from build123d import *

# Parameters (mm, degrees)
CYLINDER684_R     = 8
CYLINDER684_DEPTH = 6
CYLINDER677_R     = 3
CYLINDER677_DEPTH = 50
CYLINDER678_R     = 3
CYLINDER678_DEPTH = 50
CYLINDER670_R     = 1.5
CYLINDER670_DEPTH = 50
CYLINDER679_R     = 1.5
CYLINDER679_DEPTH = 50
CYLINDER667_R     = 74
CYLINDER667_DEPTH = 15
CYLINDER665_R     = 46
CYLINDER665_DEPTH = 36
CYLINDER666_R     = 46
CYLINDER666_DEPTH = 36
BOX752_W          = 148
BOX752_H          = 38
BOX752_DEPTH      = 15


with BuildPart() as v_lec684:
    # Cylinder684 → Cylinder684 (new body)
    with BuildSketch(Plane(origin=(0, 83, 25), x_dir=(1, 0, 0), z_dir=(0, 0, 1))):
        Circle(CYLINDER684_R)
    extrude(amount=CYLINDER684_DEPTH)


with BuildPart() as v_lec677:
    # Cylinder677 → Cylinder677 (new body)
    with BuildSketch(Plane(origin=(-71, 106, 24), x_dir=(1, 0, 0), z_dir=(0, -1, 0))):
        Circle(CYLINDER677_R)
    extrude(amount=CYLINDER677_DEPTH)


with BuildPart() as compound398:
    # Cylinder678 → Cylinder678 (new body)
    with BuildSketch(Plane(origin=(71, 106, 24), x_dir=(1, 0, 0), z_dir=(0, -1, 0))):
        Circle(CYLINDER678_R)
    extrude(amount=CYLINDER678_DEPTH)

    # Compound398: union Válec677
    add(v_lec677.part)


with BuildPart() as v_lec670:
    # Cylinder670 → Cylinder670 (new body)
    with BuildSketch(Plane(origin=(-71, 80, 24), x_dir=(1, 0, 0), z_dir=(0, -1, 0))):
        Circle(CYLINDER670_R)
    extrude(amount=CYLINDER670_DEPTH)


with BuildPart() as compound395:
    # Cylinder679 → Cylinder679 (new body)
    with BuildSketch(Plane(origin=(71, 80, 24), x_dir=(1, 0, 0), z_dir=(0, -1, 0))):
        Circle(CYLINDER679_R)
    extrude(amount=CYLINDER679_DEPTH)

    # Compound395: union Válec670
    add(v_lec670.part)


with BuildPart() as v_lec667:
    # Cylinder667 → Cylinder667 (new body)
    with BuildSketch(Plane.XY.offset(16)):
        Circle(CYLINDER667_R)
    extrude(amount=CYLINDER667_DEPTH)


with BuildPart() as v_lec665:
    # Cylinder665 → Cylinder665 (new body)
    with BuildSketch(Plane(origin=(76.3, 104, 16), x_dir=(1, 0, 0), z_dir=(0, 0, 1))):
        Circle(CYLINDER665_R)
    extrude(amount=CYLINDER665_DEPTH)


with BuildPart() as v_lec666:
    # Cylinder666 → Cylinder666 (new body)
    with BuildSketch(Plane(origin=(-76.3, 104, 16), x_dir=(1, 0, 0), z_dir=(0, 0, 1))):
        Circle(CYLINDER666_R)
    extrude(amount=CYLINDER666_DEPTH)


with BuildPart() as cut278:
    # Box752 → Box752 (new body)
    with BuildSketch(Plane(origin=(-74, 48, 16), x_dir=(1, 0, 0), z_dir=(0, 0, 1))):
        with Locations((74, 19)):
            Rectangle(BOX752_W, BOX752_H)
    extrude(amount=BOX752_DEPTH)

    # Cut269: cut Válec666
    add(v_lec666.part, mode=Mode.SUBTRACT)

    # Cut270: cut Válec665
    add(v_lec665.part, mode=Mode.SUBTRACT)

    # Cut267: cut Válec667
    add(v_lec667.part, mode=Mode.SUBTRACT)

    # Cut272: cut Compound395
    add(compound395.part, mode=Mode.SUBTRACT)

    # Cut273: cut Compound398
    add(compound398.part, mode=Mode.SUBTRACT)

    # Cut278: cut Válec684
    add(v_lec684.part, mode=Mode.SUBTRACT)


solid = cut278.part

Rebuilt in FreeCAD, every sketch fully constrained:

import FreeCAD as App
import Part
import Sketcher

V = App.Vector


def add_polygon(sketch, points):
    """Adds a closed chain of lines whose ends are joined by coincident constraints."""
    first, n = sketch.GeometryCount, len(points)
    for a, b in zip(points, points[1:] + points[:1]):
        sketch.addGeometry(Part.LineSegment(App.Vector(*a, 0), App.Vector(*b, 0)), False)
    for i in range(n):
        sketch.addConstraint(Sketcher.Constraint("Coincident", first + i, 2, first + (i + 1) % n, 1))

doc = App.newDocument("Part")
body = doc.addObject("PartDesign::Body", "Body")

# Sketch on XY plane
sketch1 = body.newObject("Sketcher::SketchObject", "Sketch")
sketch1.AttachmentSupport = (doc.getObject("XY_Plane"), [""])
sketch1.MapMode = "FlatFace"
sketch1.AttachmentOffset = App.Placement(V(0, 0, 25), App.Rotation())
sketch1.addGeometry(Part.Circle(V(0, 83, 0), V(0, 0, 1), 8), False)
sketch1.addConstraint([
    Sketcher.Constraint("PointOnObject", 0, 3, -2),
    Sketcher.Constraint("Diameter", 0, 16.0),
    Sketcher.Constraint("DistanceY", -1, 1, 0, 3, 83.0),
])
pad1 = body.newObject("PartDesign::Pad", "Pad")
pad1.Profile = sketch1
pad1.Length = 6
body2 = doc.addObject("PartDesign::Body", "Body001")

# Sketch on XZ plane
sketch2 = body2.newObject("Sketcher::SketchObject", "Sketch001")
sketch2.AttachmentSupport = (doc.getObject("XZ_Plane001"), [""])
sketch2.MapMode = "FlatFace"
sketch2.AttachmentOffset = App.Placement(V(0, 0, -106), App.Rotation())
sketch2.addGeometry(Part.Circle(V(-71, 24, 0), V(0, 0, 1), 3), False)
sketch2.addConstraint([
    Sketcher.Constraint("Diameter", 0, 6.0),
    Sketcher.Constraint("DistanceX", 0, 3, -1, 1, 71.0),
    Sketcher.Constraint("DistanceY", -1, 1, 0, 3, 24.0),
])
pad2 = body2.newObject("PartDesign::Pad", "Pad001")
pad2.Profile = sketch2
pad2.Length = 50
body3 = doc.addObject("PartDesign::Body", "Body002")
body3.AllowCompound = True

# Sketch on XZ plane
sketch3 = body3.newObject("Sketcher::SketchObject", "Sketch002")
sketch3.AttachmentSupport = (doc.getObject("XZ_Plane002"), [""])
sketch3.MapMode = "FlatFace"
sketch3.AttachmentOffset = App.Placement(V(0, 0, -106), App.Rotation())
sketch3.addGeometry(Part.Circle(V(71, 24, 0), V(0, 0, 1), 3), False)
sketch3.addConstraint([
    Sketcher.Constraint("Diameter", 0, 6.0),
    Sketcher.Constraint("DistanceX", -1, 1, 0, 3, 71.0),
    Sketcher.Constraint("DistanceY", -1, 1, 0, 3, 24.0),
])
pad3 = body3.newObject("PartDesign::Pad", "Pad002")
pad3.Profile = sketch3
pad3.Length = 50
doc.recompute()

boolean = body3.newObject("PartDesign::Boolean", "Boolean")
boolean.Type = "Fuse"
boolean.addObjects([body2])
body4 = doc.addObject("PartDesign::Body", "Body003")

# Sketch on XZ plane
sketch4 = body4.newObject("Sketcher::SketchObject", "Sketch003")
sketch4.AttachmentSupport = (doc.getObject("XZ_Plane003"), [""])
sketch4.MapMode = "FlatFace"
sketch4.AttachmentOffset = App.Placement(V(0, 0, -80), App.Rotation())
sketch4.addGeometry(Part.Circle(V(-71, 24, 0), V(0, 0, 1), 1.5), False)
sketch4.addConstraint([
    Sketcher.Constraint("Diameter", 0, 3.0),
    Sketcher.Constraint("DistanceX", 0, 3, -1, 1, 71.0),
    Sketcher.Constraint("DistanceY", -1, 1, 0, 3, 24.0),
])
pad4 = body4.newObject("PartDesign::Pad", "Pad003")
pad4.Profile = sketch4
pad4.Length = 50
body5 = doc.addObject("PartDesign::Body", "Body004")
body5.AllowCompound = True

# Sketch on XZ plane
sketch5 = body5.newObject("Sketcher::SketchObject", "Sketch004")
sketch5.AttachmentSupport = (doc.getObject("XZ_Plane004"), [""])
sketch5.MapMode = "FlatFace"
sketch5.AttachmentOffset = App.Placement(V(0, 0, -80), App.Rotation())
sketch5.addGeometry(Part.Circle(V(71, 24, 0), V(0, 0, 1), 1.5), False)
sketch5.addConstraint([
    Sketcher.Constraint("Diameter", 0, 3.0),
    Sketcher.Constraint("DistanceX", -1, 1, 0, 3, 71.0),
    Sketcher.Constraint("DistanceY", -1, 1, 0, 3, 24.0),
])
pad5 = body5.newObject("PartDesign::Pad", "Pad004")
pad5.Profile = sketch5
pad5.Length = 50
doc.recompute()

boolean2 = body5.newObject("PartDesign::Boolean", "Boolean001")
boolean2.Type = "Fuse"
boolean2.addObjects([body4])
body6 = doc.addObject("PartDesign::Body", "Body005")

# Sketch on XY plane
sketch6 = body6.newObject("Sketcher::SketchObject", "Sketch005")
sketch6.AttachmentSupport = (doc.getObject("XY_Plane005"), [""])
sketch6.MapMode = "FlatFace"
sketch6.AttachmentOffset = App.Placement(V(0, 0, 16), App.Rotation())
sketch6.addGeometry(Part.Circle(V(0, 0, 0), V(0, 0, 1), 74), False)
sketch6.addConstraint([
    Sketcher.Constraint("Coincident", 0, 3, -1, 1),
    Sketcher.Constraint("Diameter", 0, 148.0),
])
pad6 = body6.newObject("PartDesign::Pad", "Pad005")
pad6.Profile = sketch6
pad6.Length = 15
body7 = doc.addObject("PartDesign::Body", "Body006")

# Sketch on XY plane
sketch7 = body7.newObject("Sketcher::SketchObject", "Sketch006")
sketch7.AttachmentSupport = (doc.getObject("XY_Plane006"), [""])
sketch7.MapMode = "FlatFace"
sketch7.AttachmentOffset = App.Placement(V(0, 0, 16), App.Rotation())
sketch7.addGeometry(Part.Circle(V(76, 104, 0), V(0, 0, 1), 46), False)
sketch7.addConstraint([
    Sketcher.Constraint("Diameter", 0, 92.0),
    Sketcher.Constraint("DistanceY", -1, 1, 0, 3, 104.0),
    Sketcher.Constraint("DistanceX", -1, 1, 0, 3, 76.3),
])
pad7 = body7.newObject("PartDesign::Pad", "Pad006")
pad7.Profile = sketch7
pad7.Length = 36
body8 = doc.addObject("PartDesign::Body", "Body007")

# Sketch on XY plane
sketch8 = body8.newObject("Sketcher::SketchObject", "Sketch007")
sketch8.AttachmentSupport = (doc.getObject("XY_Plane007"), [""])
sketch8.MapMode = "FlatFace"
sketch8.AttachmentOffset = App.Placement(V(0, 0, 16), App.Rotation())
sketch8.addGeometry(Part.Circle(V(-76, 104, 0), V(0, 0, 1), 46), False)
sketch8.addConstraint([
    Sketcher.Constraint("Diameter", 0, 92.0),
    Sketcher.Constraint("DistanceY", -1, 1, 0, 3, 104.0),
    Sketcher.Constraint("DistanceX", 0, 3, -1, 1, 76.3),
])
pad8 = body8.newObject("PartDesign::Pad", "Pad007")
pad8.Profile = sketch8
pad8.Length = 36
body9 = doc.addObject("PartDesign::Body", "Body008")

# Sketch on XY plane
sketch9 = body9.newObject("Sketcher::SketchObject", "Sketch008")
sketch9.AttachmentSupport = (doc.getObject("XY_Plane008"), [""])
sketch9.MapMode = "FlatFace"
sketch9.AttachmentOffset = App.Placement(V(0, 0, 16), App.Rotation())
add_polygon(sketch9, [(-74, 86), (-74, 48), (74, 48), (74, 86)])  # lines 0-3
sketch9.addConstraint([
    Sketcher.Constraint("Vertical", 0),
    Sketcher.Constraint("Horizontal", 1),
    Sketcher.Constraint("Vertical", 2),
    Sketcher.Constraint("Horizontal", 3),
    Sketcher.Constraint("DistanceX", 1, 1, 1, 2, 148.0),
    Sketcher.Constraint("DistanceY", 0, 2, 0, 1, 38.0),
    Sketcher.Constraint("DistanceX", 0, 2, -1, 1, 74.0),
    Sketcher.Constraint("DistanceY", -1, 1, 0, 2, 48.0),
])
pad9 = body9.newObject("PartDesign::Pad", "Pad008")
pad9.Profile = sketch9
pad9.Length = 15
doc.recompute()

boolean3 = body9.newObject("PartDesign::Boolean", "Boolean002")
boolean3.Type = "Cut"
boolean3.addObjects([body8])
doc.recompute()

boolean4 = body9.newObject("PartDesign::Boolean", "Boolean003")
boolean4.Type = "Cut"
boolean4.addObjects([body7])
doc.recompute()

boolean5 = body9.newObject("PartDesign::Boolean", "Boolean004")
boolean5.Type = "Cut"
boolean5.addObjects([body6])
doc.recompute()

boolean6 = body9.newObject("PartDesign::Boolean", "Boolean005")
boolean6.Type = "Cut"
boolean6.addObjects([body5])
doc.recompute()

boolean7 = body9.newObject("PartDesign::Boolean", "Boolean006")
boolean7.Type = "Cut"
boolean7.addObjects([body3])
doc.recompute()

boolean8 = body9.newObject("PartDesign::Boolean", "Boolean007")
boolean8.Type = "Cut"
boolean8.addObjects([body])

doc.recompute()
